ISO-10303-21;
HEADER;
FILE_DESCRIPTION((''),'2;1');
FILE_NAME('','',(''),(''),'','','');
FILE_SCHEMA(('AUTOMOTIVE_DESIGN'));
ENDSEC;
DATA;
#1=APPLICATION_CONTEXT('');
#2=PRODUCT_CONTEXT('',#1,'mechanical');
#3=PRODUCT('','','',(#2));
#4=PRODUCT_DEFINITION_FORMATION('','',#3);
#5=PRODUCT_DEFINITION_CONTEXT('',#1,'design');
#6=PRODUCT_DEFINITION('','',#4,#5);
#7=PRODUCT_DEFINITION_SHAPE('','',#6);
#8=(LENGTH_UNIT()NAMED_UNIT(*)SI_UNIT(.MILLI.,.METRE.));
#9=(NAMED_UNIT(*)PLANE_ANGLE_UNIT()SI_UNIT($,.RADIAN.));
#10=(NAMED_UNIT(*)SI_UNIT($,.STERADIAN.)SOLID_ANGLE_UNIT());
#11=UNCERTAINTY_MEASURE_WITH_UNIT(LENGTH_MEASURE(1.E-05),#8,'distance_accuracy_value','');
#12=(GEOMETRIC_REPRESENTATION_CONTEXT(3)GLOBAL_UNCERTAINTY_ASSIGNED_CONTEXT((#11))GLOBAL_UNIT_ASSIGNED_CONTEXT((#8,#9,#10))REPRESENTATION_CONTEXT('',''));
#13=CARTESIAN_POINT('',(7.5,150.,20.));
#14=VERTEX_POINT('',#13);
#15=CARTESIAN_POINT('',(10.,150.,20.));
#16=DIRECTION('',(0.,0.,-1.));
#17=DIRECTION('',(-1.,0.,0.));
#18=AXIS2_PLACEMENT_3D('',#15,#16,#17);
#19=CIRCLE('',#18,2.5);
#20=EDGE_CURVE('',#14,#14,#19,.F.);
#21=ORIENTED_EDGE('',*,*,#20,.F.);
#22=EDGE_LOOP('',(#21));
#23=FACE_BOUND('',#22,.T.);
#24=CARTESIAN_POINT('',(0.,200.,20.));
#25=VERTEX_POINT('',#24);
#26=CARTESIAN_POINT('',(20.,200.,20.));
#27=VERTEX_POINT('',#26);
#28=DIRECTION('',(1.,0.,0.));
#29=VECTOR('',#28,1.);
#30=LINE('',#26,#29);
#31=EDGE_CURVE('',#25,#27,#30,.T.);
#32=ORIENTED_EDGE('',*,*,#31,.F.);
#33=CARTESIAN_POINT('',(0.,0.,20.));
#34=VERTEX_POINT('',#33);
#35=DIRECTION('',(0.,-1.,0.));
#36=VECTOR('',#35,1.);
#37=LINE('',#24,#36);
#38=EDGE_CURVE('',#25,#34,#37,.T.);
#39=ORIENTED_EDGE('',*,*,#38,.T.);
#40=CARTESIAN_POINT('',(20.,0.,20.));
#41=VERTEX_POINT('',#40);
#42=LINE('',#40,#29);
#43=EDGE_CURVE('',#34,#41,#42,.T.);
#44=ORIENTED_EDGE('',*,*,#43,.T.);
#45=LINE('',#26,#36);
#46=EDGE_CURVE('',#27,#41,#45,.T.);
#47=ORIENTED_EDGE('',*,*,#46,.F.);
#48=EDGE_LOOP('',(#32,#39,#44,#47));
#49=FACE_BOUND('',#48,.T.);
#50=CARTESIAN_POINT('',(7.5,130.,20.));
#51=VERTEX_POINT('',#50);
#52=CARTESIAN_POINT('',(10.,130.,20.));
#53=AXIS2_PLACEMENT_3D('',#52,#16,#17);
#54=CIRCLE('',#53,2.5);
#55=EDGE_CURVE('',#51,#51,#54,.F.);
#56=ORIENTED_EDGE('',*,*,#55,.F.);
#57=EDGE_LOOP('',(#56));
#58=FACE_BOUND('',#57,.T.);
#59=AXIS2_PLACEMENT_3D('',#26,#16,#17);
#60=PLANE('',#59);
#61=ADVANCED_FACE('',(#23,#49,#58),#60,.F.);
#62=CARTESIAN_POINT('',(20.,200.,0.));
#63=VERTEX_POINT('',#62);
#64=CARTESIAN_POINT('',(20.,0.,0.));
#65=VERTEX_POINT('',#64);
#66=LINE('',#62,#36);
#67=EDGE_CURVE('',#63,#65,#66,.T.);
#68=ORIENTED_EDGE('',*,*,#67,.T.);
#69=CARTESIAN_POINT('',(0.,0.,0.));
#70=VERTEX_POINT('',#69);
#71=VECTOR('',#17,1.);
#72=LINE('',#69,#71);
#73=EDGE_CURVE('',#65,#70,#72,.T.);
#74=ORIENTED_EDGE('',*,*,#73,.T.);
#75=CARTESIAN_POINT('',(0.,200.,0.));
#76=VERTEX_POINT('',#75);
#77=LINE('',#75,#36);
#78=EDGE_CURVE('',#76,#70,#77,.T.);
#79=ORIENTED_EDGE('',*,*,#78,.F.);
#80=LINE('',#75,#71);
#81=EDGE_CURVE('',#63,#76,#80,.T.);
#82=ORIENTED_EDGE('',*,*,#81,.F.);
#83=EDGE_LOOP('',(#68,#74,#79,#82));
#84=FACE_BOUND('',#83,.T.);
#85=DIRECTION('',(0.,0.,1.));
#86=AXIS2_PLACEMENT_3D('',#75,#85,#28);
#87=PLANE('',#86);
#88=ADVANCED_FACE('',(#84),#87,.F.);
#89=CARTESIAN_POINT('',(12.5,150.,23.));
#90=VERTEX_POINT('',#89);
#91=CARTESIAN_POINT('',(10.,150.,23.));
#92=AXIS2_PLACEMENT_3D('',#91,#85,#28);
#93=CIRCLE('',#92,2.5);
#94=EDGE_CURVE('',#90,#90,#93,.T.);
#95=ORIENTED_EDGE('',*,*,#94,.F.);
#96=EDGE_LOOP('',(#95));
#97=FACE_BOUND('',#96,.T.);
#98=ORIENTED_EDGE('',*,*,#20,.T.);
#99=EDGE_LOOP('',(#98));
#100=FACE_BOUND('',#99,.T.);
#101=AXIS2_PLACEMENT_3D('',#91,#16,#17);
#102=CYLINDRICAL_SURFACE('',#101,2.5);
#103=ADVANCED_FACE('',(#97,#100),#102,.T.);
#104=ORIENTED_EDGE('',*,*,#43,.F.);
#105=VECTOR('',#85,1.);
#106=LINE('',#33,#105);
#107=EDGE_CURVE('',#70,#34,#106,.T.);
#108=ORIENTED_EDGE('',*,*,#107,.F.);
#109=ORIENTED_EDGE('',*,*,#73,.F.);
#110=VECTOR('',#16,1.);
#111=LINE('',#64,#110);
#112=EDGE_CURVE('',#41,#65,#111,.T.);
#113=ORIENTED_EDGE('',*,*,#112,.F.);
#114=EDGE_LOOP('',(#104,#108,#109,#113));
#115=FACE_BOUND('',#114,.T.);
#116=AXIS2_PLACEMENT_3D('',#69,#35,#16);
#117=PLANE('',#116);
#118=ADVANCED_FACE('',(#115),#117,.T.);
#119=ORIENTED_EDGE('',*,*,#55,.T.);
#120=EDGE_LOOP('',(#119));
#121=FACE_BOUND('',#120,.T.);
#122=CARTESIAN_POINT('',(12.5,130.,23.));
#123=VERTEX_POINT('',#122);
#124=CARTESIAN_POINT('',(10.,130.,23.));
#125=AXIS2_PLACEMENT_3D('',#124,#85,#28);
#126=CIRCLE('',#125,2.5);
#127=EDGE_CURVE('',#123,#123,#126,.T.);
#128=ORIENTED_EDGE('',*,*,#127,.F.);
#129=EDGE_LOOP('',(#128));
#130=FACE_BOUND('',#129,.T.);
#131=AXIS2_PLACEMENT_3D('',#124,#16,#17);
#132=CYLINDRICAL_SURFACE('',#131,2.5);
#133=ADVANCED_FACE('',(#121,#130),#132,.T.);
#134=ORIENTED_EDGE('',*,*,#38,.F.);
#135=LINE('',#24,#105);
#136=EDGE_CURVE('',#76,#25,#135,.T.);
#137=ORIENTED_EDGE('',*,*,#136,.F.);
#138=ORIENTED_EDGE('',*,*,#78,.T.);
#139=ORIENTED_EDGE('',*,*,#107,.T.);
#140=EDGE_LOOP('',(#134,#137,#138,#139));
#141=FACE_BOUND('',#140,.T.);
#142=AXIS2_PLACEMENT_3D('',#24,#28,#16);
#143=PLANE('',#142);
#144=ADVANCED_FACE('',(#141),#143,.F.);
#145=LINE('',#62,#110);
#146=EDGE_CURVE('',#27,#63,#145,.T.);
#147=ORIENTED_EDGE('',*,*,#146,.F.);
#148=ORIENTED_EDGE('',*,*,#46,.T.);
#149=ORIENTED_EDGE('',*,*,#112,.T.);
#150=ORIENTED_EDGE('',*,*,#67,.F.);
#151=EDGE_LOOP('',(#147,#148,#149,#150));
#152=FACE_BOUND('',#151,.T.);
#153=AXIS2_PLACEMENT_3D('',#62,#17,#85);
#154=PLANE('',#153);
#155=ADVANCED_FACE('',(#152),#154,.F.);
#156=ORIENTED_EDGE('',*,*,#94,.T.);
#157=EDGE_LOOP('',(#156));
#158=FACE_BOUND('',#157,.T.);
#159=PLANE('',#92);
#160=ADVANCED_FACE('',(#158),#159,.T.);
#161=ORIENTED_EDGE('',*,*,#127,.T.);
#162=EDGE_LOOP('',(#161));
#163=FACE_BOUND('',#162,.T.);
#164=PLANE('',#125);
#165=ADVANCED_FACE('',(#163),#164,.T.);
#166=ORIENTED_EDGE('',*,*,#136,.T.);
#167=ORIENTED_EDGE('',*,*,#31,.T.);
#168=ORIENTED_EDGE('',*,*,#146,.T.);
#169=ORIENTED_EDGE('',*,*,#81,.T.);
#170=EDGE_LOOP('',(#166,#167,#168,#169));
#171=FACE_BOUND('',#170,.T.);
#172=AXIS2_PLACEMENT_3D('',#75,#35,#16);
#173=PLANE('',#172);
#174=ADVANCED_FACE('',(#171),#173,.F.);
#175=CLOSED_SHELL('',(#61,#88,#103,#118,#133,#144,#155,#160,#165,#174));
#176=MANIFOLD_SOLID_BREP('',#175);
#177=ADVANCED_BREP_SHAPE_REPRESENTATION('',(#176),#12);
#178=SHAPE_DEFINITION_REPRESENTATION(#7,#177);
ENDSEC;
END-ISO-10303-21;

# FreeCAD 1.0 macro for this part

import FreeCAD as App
import Part
import Sketcher

V = App.Vector


def add_polygon(sketch, points):
    """Adds a closed chain of lines whose ends are joined by coincident constraints."""
    first, n = sketch.GeometryCount, len(points)
    for a, b in zip(points, points[1:] + points[:1]):
        sketch.addGeometry(Part.LineSegment(App.Vector(*a, 0), App.Vector(*b, 0)), False)
    for i in range(n):
        sketch.addConstraint(Sketcher.Constraint("Coincident", first + i, 2, first + (i + 1) % n, 1))

doc = App.newDocument("Part")
body = doc.addObject("PartDesign::Body", "Body")

# Sketch on XZ plane
sketch1 = body.newObject("Sketcher::SketchObject", "Sketch")
sketch1.AttachmentSupport = (doc.getObject("XZ_Plane"), [""])
sketch1.MapMode = "FlatFace"
add_polygon(sketch1, [(0, 0), (0, 20), (20, 20), (20, 0)])  # lines 0-3
sketch1.addConstraint([
    Sketcher.Constraint("Vertical", 0),
    Sketcher.Constraint("Horizontal", 1),
    Sketcher.Constraint("Vertical", 2),
    Sketcher.Constraint("Horizontal", 3),
    Sketcher.Constraint("Coincident", 3, 2, -1, 1),
    Sketcher.Constraint("Equal", 3, 0),
    Sketcher.Constraint("DistanceX", 1, 1, 1, 2, 20.0),
])
pad1 = body.newObject("PartDesign::Pad", "Pad")
pad1.Profile = sketch1
pad1.Length = 200
pad1.Reversed = True

# Sketch on XY plane
sketch2 = body.newObject("Sketcher::SketchObject", "Sketch001")
sketch2.AttachmentSupport = (doc.getObject("XY_Plane"), [""])
sketch2.MapMode = "FlatFace"
sketch2.AttachmentOffset = App.Placement(V(0, 0, 20), App.Rotation())
sketch2.addGeometry([
    Part.Circle(V(10, 150, 0), V(0, 0, 1), 2.5),
    Part.Circle(V(10, 130, 0), V(0, 0, 1), 2.5),
], False)
sketch2.addConstraint([
    Sketcher.Constraint("Equal", 0, 1),
    Sketcher.Constraint("Vertical", 0, 3, 1, 3),
    Sketcher.Constraint("Diameter", 0, 5.0),
    Sketcher.Constraint("DistanceX", -1, 1, 0, 3, 10.0),
    Sketcher.Constraint("DistanceY", -1, 1, 0, 3, 150.0),
    Sketcher.Constraint("DistanceY", -1, 1, 1, 3, 130.0),
])
pad2 = body.newObject("PartDesign::Pad", "Pad001")
pad2.Profile = sketch2
pad2.Length = 3

doc.recompute()
